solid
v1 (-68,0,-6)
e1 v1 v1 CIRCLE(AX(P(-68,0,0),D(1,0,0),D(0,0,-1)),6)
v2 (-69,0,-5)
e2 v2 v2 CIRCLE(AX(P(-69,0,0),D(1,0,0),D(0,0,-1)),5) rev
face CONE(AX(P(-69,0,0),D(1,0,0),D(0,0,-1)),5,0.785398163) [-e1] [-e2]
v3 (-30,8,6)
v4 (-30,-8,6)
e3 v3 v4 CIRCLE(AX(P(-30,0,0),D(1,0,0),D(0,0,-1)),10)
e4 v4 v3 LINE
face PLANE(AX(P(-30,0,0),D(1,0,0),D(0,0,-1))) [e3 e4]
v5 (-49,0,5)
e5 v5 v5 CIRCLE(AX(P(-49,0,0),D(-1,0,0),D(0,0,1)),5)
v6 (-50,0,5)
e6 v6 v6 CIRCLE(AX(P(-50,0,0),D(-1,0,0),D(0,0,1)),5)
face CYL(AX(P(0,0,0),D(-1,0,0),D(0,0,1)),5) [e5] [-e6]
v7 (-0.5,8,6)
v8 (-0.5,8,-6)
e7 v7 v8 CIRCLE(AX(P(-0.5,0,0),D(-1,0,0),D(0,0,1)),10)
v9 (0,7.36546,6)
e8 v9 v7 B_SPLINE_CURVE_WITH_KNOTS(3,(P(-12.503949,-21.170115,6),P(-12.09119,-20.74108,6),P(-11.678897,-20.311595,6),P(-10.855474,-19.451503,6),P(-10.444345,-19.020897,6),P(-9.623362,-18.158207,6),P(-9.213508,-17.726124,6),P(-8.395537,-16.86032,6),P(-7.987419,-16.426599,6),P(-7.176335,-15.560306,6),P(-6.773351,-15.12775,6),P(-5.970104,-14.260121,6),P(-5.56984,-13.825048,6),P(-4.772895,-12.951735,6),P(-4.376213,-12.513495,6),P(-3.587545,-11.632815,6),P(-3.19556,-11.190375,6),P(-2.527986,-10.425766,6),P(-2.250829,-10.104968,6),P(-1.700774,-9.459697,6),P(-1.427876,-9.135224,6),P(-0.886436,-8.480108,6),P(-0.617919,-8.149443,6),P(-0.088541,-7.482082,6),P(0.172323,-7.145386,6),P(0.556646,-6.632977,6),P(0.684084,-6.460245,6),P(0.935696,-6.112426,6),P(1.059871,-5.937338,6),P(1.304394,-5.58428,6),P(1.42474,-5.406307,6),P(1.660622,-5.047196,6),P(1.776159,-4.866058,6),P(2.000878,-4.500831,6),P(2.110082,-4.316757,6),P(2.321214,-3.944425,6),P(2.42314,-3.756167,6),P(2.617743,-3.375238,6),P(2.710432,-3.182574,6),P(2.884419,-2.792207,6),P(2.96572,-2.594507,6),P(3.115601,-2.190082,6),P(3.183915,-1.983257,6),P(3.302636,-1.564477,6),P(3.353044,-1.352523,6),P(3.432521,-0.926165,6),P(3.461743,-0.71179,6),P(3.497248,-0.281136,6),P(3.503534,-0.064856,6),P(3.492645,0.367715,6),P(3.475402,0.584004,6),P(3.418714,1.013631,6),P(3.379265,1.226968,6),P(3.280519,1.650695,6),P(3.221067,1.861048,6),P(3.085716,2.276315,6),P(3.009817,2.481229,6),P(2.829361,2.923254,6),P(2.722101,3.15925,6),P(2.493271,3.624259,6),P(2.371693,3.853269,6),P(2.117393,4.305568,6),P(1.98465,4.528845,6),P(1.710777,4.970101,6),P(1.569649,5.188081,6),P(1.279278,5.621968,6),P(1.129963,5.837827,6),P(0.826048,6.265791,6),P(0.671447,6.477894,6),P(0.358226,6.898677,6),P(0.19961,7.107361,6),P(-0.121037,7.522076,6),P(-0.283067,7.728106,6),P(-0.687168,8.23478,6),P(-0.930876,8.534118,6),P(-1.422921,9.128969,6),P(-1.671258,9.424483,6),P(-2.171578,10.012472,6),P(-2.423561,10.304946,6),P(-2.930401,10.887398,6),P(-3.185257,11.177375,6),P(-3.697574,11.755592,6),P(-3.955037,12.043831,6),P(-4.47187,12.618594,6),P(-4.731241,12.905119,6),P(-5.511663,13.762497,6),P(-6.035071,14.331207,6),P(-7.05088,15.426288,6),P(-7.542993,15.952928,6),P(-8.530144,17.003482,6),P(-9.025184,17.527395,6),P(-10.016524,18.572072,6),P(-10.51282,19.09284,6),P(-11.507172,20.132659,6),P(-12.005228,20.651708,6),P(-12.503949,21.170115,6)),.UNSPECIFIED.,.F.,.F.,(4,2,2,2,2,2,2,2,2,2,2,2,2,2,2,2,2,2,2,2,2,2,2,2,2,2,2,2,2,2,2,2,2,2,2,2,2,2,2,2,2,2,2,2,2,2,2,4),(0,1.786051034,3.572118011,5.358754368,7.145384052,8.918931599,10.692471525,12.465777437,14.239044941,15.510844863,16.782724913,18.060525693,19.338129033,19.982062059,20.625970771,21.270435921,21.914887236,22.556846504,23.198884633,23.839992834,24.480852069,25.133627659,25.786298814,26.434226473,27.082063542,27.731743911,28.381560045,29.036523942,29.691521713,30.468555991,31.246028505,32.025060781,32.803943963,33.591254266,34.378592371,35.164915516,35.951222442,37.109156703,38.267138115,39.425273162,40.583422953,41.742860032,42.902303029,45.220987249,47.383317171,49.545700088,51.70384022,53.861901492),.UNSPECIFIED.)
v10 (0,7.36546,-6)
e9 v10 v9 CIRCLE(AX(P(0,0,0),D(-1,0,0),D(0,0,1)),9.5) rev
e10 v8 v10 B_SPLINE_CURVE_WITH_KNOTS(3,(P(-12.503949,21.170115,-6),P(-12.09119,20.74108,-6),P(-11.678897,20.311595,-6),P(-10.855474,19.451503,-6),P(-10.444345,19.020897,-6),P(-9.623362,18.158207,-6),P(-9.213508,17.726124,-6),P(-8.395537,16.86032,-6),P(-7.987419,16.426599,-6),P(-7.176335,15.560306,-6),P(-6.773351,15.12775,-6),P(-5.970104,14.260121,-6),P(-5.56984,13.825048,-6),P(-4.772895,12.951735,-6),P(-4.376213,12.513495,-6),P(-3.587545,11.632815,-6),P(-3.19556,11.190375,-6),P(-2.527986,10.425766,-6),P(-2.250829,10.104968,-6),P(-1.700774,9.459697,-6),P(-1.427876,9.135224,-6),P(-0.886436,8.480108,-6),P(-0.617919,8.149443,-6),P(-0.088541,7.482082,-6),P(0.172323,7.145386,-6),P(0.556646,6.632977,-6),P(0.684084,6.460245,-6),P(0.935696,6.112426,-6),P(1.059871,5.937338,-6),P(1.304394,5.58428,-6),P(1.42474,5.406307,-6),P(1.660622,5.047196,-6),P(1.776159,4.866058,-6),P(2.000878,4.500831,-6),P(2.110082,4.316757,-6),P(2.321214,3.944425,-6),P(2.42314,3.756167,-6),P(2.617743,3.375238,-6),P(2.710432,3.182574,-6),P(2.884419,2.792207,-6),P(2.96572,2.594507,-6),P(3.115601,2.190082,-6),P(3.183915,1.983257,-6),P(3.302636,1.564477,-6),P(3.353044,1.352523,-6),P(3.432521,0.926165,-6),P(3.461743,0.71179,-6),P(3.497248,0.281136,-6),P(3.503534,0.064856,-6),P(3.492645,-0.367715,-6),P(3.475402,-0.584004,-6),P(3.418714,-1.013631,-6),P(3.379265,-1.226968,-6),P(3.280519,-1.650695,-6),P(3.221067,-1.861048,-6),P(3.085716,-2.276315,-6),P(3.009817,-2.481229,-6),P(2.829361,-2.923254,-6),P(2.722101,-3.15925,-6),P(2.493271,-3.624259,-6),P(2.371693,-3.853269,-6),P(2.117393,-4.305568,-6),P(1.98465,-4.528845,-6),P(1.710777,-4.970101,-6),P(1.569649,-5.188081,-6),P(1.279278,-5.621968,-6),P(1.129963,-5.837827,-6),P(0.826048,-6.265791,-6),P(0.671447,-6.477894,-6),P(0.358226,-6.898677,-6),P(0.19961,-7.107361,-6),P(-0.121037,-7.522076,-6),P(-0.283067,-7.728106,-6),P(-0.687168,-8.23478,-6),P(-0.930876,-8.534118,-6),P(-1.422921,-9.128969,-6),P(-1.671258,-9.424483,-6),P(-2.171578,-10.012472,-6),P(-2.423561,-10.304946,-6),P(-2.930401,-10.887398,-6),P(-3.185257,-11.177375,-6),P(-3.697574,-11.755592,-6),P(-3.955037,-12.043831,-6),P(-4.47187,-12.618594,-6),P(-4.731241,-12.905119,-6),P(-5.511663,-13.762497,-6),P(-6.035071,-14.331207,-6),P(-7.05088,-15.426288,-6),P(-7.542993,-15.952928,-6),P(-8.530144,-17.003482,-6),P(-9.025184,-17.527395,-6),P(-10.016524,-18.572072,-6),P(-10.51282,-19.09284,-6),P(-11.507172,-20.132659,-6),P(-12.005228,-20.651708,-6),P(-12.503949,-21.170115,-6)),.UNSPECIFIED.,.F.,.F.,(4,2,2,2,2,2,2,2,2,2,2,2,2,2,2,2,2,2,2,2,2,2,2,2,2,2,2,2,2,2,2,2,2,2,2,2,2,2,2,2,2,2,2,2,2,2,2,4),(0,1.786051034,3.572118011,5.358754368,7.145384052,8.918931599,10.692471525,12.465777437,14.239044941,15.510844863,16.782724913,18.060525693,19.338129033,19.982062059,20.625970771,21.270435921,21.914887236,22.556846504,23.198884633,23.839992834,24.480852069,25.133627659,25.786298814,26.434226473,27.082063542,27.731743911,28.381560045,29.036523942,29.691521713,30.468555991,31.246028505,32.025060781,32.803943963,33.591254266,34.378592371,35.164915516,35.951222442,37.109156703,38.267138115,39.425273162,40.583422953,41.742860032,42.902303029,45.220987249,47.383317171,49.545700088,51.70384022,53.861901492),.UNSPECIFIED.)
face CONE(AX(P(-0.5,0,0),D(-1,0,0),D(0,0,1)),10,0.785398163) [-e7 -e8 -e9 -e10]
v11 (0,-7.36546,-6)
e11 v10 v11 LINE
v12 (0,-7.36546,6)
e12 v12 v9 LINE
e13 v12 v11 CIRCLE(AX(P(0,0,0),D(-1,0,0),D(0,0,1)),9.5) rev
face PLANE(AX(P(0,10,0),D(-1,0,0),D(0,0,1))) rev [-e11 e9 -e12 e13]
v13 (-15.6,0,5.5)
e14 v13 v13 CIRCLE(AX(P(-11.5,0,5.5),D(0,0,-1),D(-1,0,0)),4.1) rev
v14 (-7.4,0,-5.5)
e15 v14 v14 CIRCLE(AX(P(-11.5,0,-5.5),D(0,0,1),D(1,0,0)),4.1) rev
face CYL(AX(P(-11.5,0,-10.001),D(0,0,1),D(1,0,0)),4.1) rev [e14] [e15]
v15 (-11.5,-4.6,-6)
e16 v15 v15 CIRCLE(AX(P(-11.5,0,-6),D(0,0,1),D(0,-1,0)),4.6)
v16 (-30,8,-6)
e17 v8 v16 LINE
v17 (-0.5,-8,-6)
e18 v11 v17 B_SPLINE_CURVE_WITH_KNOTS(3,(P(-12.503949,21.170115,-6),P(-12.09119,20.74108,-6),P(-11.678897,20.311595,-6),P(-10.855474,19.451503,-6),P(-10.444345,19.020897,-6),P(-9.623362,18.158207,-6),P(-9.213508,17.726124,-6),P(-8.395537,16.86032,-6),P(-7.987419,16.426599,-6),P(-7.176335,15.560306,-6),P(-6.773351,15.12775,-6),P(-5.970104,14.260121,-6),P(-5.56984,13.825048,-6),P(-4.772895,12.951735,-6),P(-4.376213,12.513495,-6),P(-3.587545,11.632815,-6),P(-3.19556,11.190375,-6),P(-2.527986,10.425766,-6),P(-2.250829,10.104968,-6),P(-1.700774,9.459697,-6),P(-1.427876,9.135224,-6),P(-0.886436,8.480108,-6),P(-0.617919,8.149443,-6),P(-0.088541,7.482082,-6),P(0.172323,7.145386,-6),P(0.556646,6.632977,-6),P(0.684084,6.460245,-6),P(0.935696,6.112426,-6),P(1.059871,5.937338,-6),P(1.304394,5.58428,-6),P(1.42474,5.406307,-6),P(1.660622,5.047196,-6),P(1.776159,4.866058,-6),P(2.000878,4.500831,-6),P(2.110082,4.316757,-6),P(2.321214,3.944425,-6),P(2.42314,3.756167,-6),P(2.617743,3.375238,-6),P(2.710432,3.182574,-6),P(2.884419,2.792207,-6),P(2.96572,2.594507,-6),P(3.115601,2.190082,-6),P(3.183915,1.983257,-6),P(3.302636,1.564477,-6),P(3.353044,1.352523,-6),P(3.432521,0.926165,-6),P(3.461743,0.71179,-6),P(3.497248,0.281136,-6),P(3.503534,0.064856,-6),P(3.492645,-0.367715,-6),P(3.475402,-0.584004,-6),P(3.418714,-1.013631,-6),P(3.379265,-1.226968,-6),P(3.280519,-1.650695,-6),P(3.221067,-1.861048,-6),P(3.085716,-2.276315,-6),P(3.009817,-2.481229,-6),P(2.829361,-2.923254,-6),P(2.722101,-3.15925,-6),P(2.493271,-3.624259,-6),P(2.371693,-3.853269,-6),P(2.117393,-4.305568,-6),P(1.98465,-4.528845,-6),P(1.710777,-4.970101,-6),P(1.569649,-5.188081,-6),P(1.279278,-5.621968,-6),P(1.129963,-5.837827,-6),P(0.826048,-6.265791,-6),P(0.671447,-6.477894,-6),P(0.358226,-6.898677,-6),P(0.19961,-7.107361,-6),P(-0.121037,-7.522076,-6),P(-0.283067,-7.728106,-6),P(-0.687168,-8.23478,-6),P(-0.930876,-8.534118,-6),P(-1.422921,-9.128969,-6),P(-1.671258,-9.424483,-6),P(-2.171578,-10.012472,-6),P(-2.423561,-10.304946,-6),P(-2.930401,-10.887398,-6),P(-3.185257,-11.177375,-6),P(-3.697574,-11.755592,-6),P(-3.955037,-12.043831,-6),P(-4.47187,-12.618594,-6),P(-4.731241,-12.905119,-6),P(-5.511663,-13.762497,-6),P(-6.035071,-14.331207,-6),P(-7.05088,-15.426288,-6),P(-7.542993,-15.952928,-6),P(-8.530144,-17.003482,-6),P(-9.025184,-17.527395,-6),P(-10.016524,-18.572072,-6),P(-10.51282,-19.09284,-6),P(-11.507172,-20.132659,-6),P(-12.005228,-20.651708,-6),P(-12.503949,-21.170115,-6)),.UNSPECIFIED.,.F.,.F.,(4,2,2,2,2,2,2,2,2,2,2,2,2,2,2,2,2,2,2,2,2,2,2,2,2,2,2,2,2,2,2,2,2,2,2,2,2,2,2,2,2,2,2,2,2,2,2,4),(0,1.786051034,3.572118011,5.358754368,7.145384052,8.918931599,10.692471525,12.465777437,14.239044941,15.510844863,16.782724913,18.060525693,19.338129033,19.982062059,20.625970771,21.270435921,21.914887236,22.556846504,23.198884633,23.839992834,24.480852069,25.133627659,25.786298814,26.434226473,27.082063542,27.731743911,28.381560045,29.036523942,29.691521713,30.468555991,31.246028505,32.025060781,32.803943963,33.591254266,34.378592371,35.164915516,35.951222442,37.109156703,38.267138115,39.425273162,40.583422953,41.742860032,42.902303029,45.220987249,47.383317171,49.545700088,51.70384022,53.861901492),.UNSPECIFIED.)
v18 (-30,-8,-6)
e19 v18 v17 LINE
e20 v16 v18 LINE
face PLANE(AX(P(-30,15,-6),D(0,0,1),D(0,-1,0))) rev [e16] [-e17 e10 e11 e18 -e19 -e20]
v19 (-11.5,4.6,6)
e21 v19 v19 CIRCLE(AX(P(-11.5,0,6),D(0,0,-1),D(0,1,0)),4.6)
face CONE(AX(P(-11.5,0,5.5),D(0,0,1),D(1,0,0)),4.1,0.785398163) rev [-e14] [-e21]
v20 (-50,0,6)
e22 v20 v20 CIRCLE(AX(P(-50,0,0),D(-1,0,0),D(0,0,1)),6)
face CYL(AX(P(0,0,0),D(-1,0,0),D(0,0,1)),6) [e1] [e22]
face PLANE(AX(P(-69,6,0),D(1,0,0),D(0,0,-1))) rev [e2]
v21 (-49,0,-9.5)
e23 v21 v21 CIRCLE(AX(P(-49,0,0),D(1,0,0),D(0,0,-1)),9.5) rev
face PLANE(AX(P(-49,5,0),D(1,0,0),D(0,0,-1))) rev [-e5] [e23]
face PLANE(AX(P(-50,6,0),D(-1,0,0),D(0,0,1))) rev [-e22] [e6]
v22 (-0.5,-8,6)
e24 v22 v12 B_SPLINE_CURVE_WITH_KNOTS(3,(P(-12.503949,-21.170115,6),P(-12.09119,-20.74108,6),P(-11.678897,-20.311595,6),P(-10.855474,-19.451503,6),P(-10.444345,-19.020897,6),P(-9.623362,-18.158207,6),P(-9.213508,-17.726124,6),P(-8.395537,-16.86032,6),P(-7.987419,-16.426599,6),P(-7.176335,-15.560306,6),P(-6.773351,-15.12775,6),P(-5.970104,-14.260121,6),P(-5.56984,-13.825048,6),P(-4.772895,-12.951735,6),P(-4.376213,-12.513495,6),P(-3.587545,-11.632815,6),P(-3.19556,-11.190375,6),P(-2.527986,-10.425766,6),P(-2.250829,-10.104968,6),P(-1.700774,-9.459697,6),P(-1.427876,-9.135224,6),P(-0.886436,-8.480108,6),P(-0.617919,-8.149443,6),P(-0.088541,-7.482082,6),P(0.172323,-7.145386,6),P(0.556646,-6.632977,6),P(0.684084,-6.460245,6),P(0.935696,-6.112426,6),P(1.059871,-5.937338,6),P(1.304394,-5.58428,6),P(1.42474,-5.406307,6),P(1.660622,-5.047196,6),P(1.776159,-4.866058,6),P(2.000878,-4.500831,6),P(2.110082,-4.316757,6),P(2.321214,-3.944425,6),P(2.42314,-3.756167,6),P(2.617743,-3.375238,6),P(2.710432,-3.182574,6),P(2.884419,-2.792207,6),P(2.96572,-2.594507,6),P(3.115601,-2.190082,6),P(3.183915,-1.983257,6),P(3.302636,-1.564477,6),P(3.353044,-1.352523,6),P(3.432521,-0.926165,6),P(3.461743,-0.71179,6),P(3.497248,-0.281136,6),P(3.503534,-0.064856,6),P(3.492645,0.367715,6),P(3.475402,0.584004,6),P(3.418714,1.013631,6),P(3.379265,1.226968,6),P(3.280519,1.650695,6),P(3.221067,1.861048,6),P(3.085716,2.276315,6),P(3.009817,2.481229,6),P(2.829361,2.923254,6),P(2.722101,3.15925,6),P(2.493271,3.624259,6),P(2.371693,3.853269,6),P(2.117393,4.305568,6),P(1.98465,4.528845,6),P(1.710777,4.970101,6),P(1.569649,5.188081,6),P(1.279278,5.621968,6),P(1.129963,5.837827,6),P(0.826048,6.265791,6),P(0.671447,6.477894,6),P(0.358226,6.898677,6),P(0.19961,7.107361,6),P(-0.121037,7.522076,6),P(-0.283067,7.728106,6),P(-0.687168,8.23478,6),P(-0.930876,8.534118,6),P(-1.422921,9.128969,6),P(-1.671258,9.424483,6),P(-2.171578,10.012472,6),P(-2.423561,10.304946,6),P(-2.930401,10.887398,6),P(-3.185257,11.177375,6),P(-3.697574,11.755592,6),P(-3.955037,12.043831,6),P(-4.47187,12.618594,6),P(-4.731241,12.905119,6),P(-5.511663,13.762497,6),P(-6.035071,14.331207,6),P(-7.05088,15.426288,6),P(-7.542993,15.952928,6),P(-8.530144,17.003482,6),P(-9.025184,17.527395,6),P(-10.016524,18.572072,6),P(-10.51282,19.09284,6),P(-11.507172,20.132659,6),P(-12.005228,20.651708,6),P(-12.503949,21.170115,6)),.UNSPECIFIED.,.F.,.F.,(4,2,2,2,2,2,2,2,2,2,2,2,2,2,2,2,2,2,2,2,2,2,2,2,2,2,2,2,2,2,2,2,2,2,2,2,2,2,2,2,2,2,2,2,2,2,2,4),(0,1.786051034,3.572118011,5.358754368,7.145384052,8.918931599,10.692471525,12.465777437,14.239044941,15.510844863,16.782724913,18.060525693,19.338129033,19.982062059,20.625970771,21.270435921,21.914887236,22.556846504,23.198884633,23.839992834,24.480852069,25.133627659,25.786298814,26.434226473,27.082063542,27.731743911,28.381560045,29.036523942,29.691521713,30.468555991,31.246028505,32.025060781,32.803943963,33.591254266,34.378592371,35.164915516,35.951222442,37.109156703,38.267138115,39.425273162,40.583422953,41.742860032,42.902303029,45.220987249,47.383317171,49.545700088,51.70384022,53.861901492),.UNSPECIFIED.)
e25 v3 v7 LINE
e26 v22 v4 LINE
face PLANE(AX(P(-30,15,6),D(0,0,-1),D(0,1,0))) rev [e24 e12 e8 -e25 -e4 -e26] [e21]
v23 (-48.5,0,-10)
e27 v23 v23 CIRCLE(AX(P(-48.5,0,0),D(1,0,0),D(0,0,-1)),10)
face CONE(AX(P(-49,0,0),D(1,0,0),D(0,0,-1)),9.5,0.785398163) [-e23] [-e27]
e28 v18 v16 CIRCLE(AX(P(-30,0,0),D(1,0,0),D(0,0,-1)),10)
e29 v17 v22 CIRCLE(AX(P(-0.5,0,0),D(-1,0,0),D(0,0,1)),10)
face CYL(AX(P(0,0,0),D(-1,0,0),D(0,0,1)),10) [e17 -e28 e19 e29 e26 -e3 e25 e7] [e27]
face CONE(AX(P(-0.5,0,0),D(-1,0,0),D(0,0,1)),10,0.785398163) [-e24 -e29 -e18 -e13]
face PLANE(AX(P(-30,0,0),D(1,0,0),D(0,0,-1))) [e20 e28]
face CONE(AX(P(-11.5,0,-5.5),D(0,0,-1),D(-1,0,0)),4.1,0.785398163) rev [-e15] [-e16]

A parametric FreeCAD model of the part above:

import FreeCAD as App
import Part
import Sketcher
from FreeCAD import Vector
Q = App.Units.Quantity


def edges_at(feature, points):
    """Names of the edges that pass closest to the given points."""
    edges = feature.Shape.Edges
    near = lambda p: min(range(len(edges)), key=lambda i: edges[i].distToShape(Part.Vertex(*p))[0])
    return sorted({f"Edge{near(p) + 1}" for p in points})

doc = App.newDocument("Part")
body = doc.addObject("PartDesign::Body", "Body")

# Sketch on XY plane
sketch1 = body.newObject("Sketcher::SketchObject", "Sketch")
sketch1.AttachmentSupport = (doc.getObject("XY_Plane"), [""])
sketch1.MapMode = "FlatFace"
sketch1.addGeometry([
    Part.LineSegment(Vector(-49, 10, 0), Vector(-49, 5, 0)),  # 0
    Part.LineSegment(Vector(-49, 5, 0), Vector(-50, 5, 0)),  # 1
    Part.LineSegment(Vector(-50, 5, 0), Vector(-50, 6, 0)),  # 2
    Part.LineSegment(Vector(-50, 6, 0), Vector(-69, 6, 0)),  # 3
    Part.LineSegment(Vector(-69, 6, 0), Vector(-69, 0, 0)),  # 4
    Part.LineSegment(Vector(-69, 0, 0), Vector(0, 0, 0)),  # 5
    Part.LineSegment(Vector(0, 0, 0), Vector(0, 10, 0)),  # 6
    Part.LineSegment(Vector(0, 10, 0), Vector(-49, 10, 0)),  # 7
], False)
sketch1.addConstraint([
    Sketcher.Constraint("Coincident", 0, 2, 1, 1),
    Sketcher.Constraint("Coincident", 1, 2, 2, 1),
    Sketcher.Constraint("Coincident", 2, 2, 3, 1),
    Sketcher.Constraint("Coincident", 3, 2, 4, 1),
    Sketcher.Constraint("Coincident", 4, 2, 5, 1),
    Sketcher.Constraint("Coincident", 5, 2, 6, 1),
    Sketcher.Constraint("Coincident", 6, 2, 7, 1),
    Sketcher.Constraint("Coincident", 7, 2, 0, 1),
    Sketcher.Constraint("Vertical", 0),
    Sketcher.Constraint("Horizontal", 1),
    Sketcher.Constraint("Vertical", 2),
    Sketcher.Constraint("Horizontal", 3),
    Sketcher.Constraint("Vertical", 4),
    Sketcher.Constraint("Horizontal", 5),
    Sketcher.Constraint("Vertical", 6),
    Sketcher.Constraint("Horizontal", 7),
    Sketcher.Constraint("Coincident", 5, 2, -1, 1),
    Sketcher.Constraint("Equal", 1, 2),
    Sketcher.Constraint("DistanceX", 1, 2, 1, 1, Q("1 mm")),
    Sketcher.Constraint("DistanceX", 3, 2, 3, 1, Q("19 mm")),
    Sketcher.Constraint("DistanceX", 5, 1, 5, 2, Q("69 mm")),
    Sketcher.Constraint("DistanceY", 0, 2, 0, 1, Q("5 mm")),
    Sketcher.Constraint("DistanceY", 4, 2, 4, 1, Q("6 mm")),
])
revolution = body.newObject("PartDesign::Revolution", "Revolution")
revolution.Profile = sketch1
revolution.ReferenceAxis = (sketch1, ["H_Axis"])
revolution.Angle = 360
doc.recompute()

chamfer = body.newObject("PartDesign::Chamfer", "Chamfer")
chamfer.Base = (revolution, edges_at(revolution, [(-49, 0, -10), (0, 0, -10)]))
chamfer.Size = 0.5
doc.recompute()

chamfer2 = body.newObject("PartDesign::Chamfer", "Chamfer001")
chamfer2.Base = (chamfer, edges_at(chamfer, [(-69, 0, -6)]))
chamfer2.Size = 1

# Sketch on YZ plane
sketch2 = body.newObject("Sketcher::SketchObject", "Sketch001")
sketch2.AttachmentSupport = (doc.getObject("YZ_Plane"), [""])
sketch2.MapMode = "FlatFace"
sketch2.addGeometry([
    Part.LineSegment(Vector(15, 15, 0), Vector(-15, 15, 0)),  # 0
    Part.LineSegment(Vector(-15, 15, 0), Vector(-15, 6, 0)),  # 1
    Part.LineSegment(Vector(-15, 6, 0), Vector(15, 6, 0)),  # 2
    Part.LineSegment(Vector(15, 6, 0), Vector(15, 15, 0)),  # 3
    Part.LineSegment(Vector(15, -6, 0), Vector(-15, -6, 0)),  # 4
    Part.LineSegment(Vector(-15, -6, 0), Vector(-15, -15, 0)),  # 5
    Part.LineSegment(Vector(-15, -15, 0), Vector(15, -15, 0)),  # 6
    Part.LineSegment(Vector(15, -15, 0), Vector(15, -6, 0)),  # 7
], False)
sketch2.addConstraint([
    Sketcher.Constraint("Coincident", 0, 2, 1, 1),
    Sketcher.Constraint("Coincident", 1, 2, 2, 1),
    Sketcher.Constraint("Coincident", 2, 2, 3, 1),
    Sketcher.Constraint("Coincident", 3, 2, 0, 1),
    Sketcher.Constraint("Coincident", 4, 2, 5, 1),
    Sketcher.Constraint("Coincident", 5, 2, 6, 1),
    Sketcher.Constraint("Coincident", 6, 2, 7, 1),
    Sketcher.Constraint("Coincident", 7, 2, 4, 1),
    Sketcher.Constraint("Horizontal", 0),
    Sketcher.Constraint("Vertical", 1),
    Sketcher.Constraint("Horizontal", 2),
    Sketcher.Constraint("Vertical", 3),
    Sketcher.Constraint("Horizontal", 4),
    Sketcher.Constraint("Vertical", 5),
    Sketcher.Constraint("Horizontal", 6),
    Sketcher.Constraint("Vertical", 7),
    Sketcher.Constraint("Symmetric", 2, 2, 4, 2, -1, 1),
    Sketcher.Constraint("Symmetric", 0, 2, 6, 2, -1, 1),
    Sketcher.Constraint("Vertical", 1, 2, 4, 2),
    Sketcher.Constraint("DistanceX", 0, 2, 0, 1, Q("30 mm")),
    Sketcher.Constraint("DistanceY", 1, 2, 1, 1, Q("9 mm")),
    Sketcher.Constraint("DistanceY", -1, 1, 0, 2, Q("15 mm")),
])
pocket1 = body.newObject("PartDesign::Pocket", "Pocket")
pocket1.Profile = sketch2
pocket1.Length = 30

# Sketch on XY plane
sketch3 = body.newObject("Sketcher::SketchObject", "Sketch002")
sketch3.AttachmentSupport = (doc.getObject("XY_Plane"), [""])
sketch3.MapMode = "FlatFace"
sketch3.AttachmentOffset = App.Placement(Vector(0, 0, 6), App.Rotation())
sketch3.addGeometry(Part.Circle(Vector(-11.5, 0, 0), Vector(0, 0, 1), 4.1), False)
sketch3.addConstraint([
    Sketcher.Constraint("PointOnObject", 0, 3, -1),
    Sketcher.Constraint("Diameter", 0, Q("8.2 mm")),
    Sketcher.Constraint("DistanceX", 0, 3, -1, 1, Q("11.5 mm")),
])
pocket2 = body.newObject("PartDesign::Pocket", "Pocket001")
pocket2.Profile = sketch3
pocket2.Type = "UpToFirst"
doc.recompute()

chamfer3 = body.newObject("PartDesign::Chamfer", "Chamfer002")
chamfer3.Base = (pocket2, edges_at(pocket2, [(-15.6, 0, 6), (-15.6, 0, -6)]))
chamfer3.Size = 0.5

doc.recompute()
